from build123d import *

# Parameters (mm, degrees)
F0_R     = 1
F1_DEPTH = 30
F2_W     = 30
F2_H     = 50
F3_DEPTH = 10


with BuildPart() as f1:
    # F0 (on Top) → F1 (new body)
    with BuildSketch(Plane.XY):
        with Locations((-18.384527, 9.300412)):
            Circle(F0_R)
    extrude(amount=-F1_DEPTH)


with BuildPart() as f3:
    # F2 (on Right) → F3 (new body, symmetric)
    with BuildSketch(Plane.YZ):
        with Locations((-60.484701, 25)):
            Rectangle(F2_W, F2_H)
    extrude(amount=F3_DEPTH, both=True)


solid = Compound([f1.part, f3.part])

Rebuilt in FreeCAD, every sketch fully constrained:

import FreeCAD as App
import Part
import Sketcher

V = App.Vector

doc = App.newDocument("Part")
params = doc.addObject("Spreadsheet::Sheet", "Params")
for row, (alias, value) in enumerate([
    ("sketch1_diameter", "2 mm"),
    ("pad1_length", "30 mm"),
    ("sketch2_width", "30 mm"),
    ("sketch2_height", "50 mm"),
    ("pad2_length", "20 mm"),
], start=1):
    params.set(f"A{row}", alias)
    params.set(f"B{row}", "=" + value)
    params.setAlias(f"B{row}", alias)

body = doc.addObject("PartDesign::Body", "Body")

sketch1 = body.newObject("Sketcher::SketchObject", "Sketch")
sketch1.AttachmentSupport = (doc.getObject("XY_Plane"), [""])
sketch1.MapMode = "FlatFace"
sketch1.addGeometry(Part.Circle(V(-18.4, 9.3, 0), V(0, 0, 1), 1), False)
sketch1.addConstraint([
    Sketcher.Constraint("Diameter", 0, 2.0),
    Sketcher.Constraint("DistanceX", 0, 3, -1, 1, 18.384527),
    Sketcher.Constraint("DistanceY", -1, 1, 0, 3, 9.300412),
])
sketch1.setExpression("Constraints[0]", "Params.sketch1_diameter")
pad1 = body.newObject("PartDesign::Pad", "Pad")
pad1.Profile = sketch1
pad1.setExpression("Length", "Params.pad1_length")
pad1.Reversed = True
body2 = doc.addObject("PartDesign::Body", "Body001")

sketch2 = body2.newObject("Sketcher::SketchObject", "Sketch001")
sketch2.AttachmentSupport = (doc.getObject("YZ_Plane001"), [""])
sketch2.MapMode = "FlatFace"
sketch2.addGeometry([
    Part.LineSegment(V(-75, 50, 0), V(-75, 0, 0)),
    Part.LineSegment(V(-75, 0, 0), V(-45, 0, 0)),
    Part.LineSegment(V(-45, 0, 0), V(-45, 50, 0)),
    Part.LineSegment(V(-45, 50, 0), V(-75, 50, 0)),
], False)
sketch2.addConstraint([
    Sketcher.Constraint("Coincident", 0, 2, 1, 1),
    Sketcher.Constraint("Coincident", 1, 2, 2, 1),
    Sketcher.Constraint("Coincident", 2, 2, 3, 1),
    Sketcher.Constraint("Coincident", 3, 2, 0, 1),
    Sketcher.Constraint("Vertical", 0),
    Sketcher.Constraint("Horizontal", 1),
    Sketcher.Constraint("Vertical", 2),
    Sketcher.Constraint("Horizontal", 3),
    Sketcher.Constraint("PointOnObject", 0, 2, -1),
    Sketcher.Constraint("DistanceX", 1, 1, 1, 2, 30.0),
    Sketcher.Constraint("DistanceY", 0, 2, 0, 1, 50.0),
    Sketcher.Constraint("DistanceX", 0, 2, -1, 1, 75.484701),
])
sketch2.setExpression("Constraints[9]", "Params.sketch2_width")
sketch2.setExpression("Constraints[10]", "Params.sketch2_height")
pad2 = body2.newObject("PartDesign::Pad", "Pad001")
pad2.Profile = sketch2
pad2.setExpression("Length", "Params.pad2_length")
pad2.Midplane = True

doc.recompute()
